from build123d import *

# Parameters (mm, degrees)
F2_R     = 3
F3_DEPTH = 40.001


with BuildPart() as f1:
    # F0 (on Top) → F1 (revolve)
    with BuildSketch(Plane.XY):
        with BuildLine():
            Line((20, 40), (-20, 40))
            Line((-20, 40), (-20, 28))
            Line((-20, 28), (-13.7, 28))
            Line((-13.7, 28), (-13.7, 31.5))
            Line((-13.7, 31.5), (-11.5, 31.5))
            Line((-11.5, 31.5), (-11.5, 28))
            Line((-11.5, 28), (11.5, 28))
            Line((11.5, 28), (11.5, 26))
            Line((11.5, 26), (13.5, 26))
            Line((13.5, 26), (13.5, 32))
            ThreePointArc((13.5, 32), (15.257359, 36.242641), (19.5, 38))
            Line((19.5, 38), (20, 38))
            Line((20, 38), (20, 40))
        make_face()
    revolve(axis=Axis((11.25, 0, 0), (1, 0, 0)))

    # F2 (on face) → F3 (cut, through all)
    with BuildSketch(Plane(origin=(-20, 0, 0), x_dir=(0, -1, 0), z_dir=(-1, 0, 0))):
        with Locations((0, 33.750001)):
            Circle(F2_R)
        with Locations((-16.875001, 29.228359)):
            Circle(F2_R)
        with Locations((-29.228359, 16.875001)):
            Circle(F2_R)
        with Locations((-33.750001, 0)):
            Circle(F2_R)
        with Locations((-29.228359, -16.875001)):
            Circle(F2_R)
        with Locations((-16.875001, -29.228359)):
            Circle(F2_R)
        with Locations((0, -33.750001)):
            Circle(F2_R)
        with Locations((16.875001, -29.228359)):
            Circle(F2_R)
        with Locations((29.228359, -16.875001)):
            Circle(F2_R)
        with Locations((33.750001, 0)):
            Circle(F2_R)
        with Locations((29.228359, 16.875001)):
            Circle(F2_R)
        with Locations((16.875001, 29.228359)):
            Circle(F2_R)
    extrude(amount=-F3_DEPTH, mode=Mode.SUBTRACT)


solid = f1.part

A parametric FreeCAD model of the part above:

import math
import FreeCAD as App
import Part
import Sketcher
Q = App.Units.Quantity

doc = App.newDocument("Part")
params = doc.addObject("Spreadsheet::Sheet", "Params")
for row, (alias, value) in enumerate([
    ("sketch1_radius", "5.999999 mm"),
    ("sketch1_width", "40 mm"),
    ("sketch1_width2", "23 mm"),
    ("sketch1_width3", "2 mm"),
    ("sketch1_height", "12 mm"),
    ("revolution_angle", "360 deg"),
    ("sketch2_diameter", "6 mm"),
], start=1):
    params.set(f"A{row}", alias)
    params.set(f"B{row}", "=" + value)
    params.setAlias(f"B{row}", alias)

body = doc.addObject("PartDesign::Body", "Body")

# Sketch on XY plane
sketch1 = body.newObject("Sketcher::SketchObject", "Sketch")
sketch1.AttachmentSupport = (doc.getObject("XY_Plane"), [""])
sketch1.MapMode = "FlatFace"
sketch1.addGeometry(Part.LineSegment(App.Vector(20, 40, 0), App.Vector(-20, 40, 0)), False)
sketch1.addGeometry(Part.LineSegment(App.Vector(-20, 40, 0), App.Vector(-20, 28, 0)), False)
sketch1.addGeometry(Part.LineSegment(App.Vector(-20, 28, 0), App.Vector(-13.7, 28, 0)), False)
sketch1.addGeometry(Part.LineSegment(App.Vector(-13.7, 28, 0), App.Vector(-13.7, 31.5, 0)), False)
sketch1.addGeometry(Part.LineSegment(App.Vector(-13.7, 31.5, 0), App.Vector(-11.5, 31.5, 0)), False)
sketch1.addGeometry(Part.LineSegment(App.Vector(-11.5, 31.5, 0), App.Vector(-11.5, 28, 0)), False)
sketch1.addGeometry(Part.LineSegment(App.Vector(-11.5, 28, 0), App.Vector(11.5, 28, 0)), False)
sketch1.addGeometry(Part.LineSegment(App.Vector(11.5, 28, 0), App.Vector(11.5, 26, 0)), False)
sketch1.addGeometry(Part.LineSegment(App.Vector(11.5, 26, 0), App.Vector(13.5, 26, 0)), False)
sketch1.addGeometry(Part.LineSegment(App.Vector(13.5, 26, 0), App.Vector(13.5, 32, 0)), False)
sketch1.addGeometry(Part.ArcOfCircle(Part.Circle(App.Vector(19.5, 32, 0), App.Vector(0, 0, 1), 6), math.radians(90), math.radians(180)), False)
sketch1.addGeometry(Part.LineSegment(App.Vector(19.5, 38, 0), App.Vector(20, 38, 0)), False)
sketch1.addGeometry(Part.LineSegment(App.Vector(20, 38, 0), App.Vector(20, 40, 0)), False)
sketch1.addConstraint(Sketcher.Constraint("Coincident", 0, 2, 1, 1))
sketch1.addConstraint(Sketcher.Constraint("Coincident", 1, 2, 2, 1))
sketch1.addConstraint(Sketcher.Constraint("Coincident", 2, 2, 3, 1))
sketch1.addConstraint(Sketcher.Constraint("Coincident", 3, 2, 4, 1))
sketch1.addConstraint(Sketcher.Constraint("Coincident", 4, 2, 5, 1))
sketch1.addConstraint(Sketcher.Constraint("Coincident", 5, 2, 6, 1))
sketch1.addConstraint(Sketcher.Constraint("Coincident", 6, 2, 7, 1))
sketch1.addConstraint(Sketcher.Constraint("Coincident", 7, 2, 8, 1))
sketch1.addConstraint(Sketcher.Constraint("Coincident", 8, 2, 9, 1))
sketch1.addConstraint(Sketcher.Constraint("Tangent", 9, 2, 10, 2))
sketch1.addConstraint(Sketcher.Constraint("Tangent", 10, 1, 11, 1))
sketch1.addConstraint(Sketcher.Constraint("Coincident", 11, 2, 12, 1))
sketch1.addConstraint(Sketcher.Constraint("Coincident", 12, 2, 0, 1))
sketch1.addConstraint(Sketcher.Constraint("Horizontal", 0))
sketch1.addConstraint(Sketcher.Constraint("Vertical", 1))
sketch1.addConstraint(Sketcher.Constraint("Horizontal", 2))
sketch1.addConstraint(Sketcher.Constraint("Vertical", 3))
sketch1.addConstraint(Sketcher.Constraint("Horizontal", 4))
sketch1.addConstraint(Sketcher.Constraint("Vertical", 5))
sketch1.addConstraint(Sketcher.Constraint("Horizontal", 6))
sketch1.addConstraint(Sketcher.Constraint("Vertical", 7))
sketch1.addConstraint(Sketcher.Constraint("Horizontal", 8))
sketch1.addConstraint(Sketcher.Constraint("Vertical", 9))
sketch1.addConstraint(Sketcher.Constraint("Horizontal", 11))
sketch1.addConstraint(Sketcher.Constraint("Vertical", 12))
sketch1.addConstraint(Sketcher.Constraint("Horizontal", 2, 2, 5, 2))
sketch1.addConstraint(Sketcher.Constraint("Equal", 8, 7))
sketch1.addConstraint(Sketcher.Constraint("Equal", 7, 12))
sketch1.addConstraint(Sketcher.Constraint("Radius", 10, Q("5.999999 mm")))
sketch1.addConstraint(Sketcher.Constraint("DistanceX", 0, 2, 0, 1, Q("40 mm")))
sketch1.addConstraint(Sketcher.Constraint("DistanceX", 6, 1, 6, 2, Q("23 mm")))
sketch1.addConstraint(Sketcher.Constraint("DistanceX", 8, 1, 8, 2, Q("2 mm")))
sketch1.addConstraint(Sketcher.Constraint("DistanceY", 1, 2, 1, 1, Q("12 mm")))
sketch1.addConstraint(Sketcher.Constraint("DistanceX", 2, 1, 2, 2, Q("6.3 mm")))
sketch1.addConstraint(Sketcher.Constraint("DistanceX", 4, 1, 4, 2, Q("2.2 mm")))
sketch1.addConstraint(Sketcher.Constraint("DistanceY", 3, 1, 3, 2, Q("3.5 mm")))
sketch1.addConstraint(Sketcher.Constraint("DistanceY", -1, 1, 10, 3, Q("32.000001 mm")))
sketch1.addConstraint(Sketcher.Constraint("DistanceX", 0, 2, -1, 1, Q("20 mm")))
sketch1.setExpression("Constraints[28]", "Params.sketch1_radius")
sketch1.setExpression("Constraints[29]", "Params.sketch1_width")
sketch1.setExpression("Constraints[30]", "Params.sketch1_width2")
sketch1.setExpression("Constraints[31]", "Params.sketch1_width3")
sketch1.setExpression("Constraints[32]", "Params.sketch1_height")
revolution = body.newObject("PartDesign::Revolution", "Revolution")
revolution.Profile = sketch1
revolution.ReferenceAxis = (sketch1, ["H_Axis"])
revolution.setExpression("Angle", "Params.revolution_angle")

# Sketch on YZ plane
sketch2 = body.newObject("Sketcher::SketchObject", "Sketch001")
sketch2.AttachmentSupport = (doc.getObject("YZ_Plane"), [""])
sketch2.MapMode = "FlatFace"
sketch2.AttachmentOffset = App.Placement(App.Vector(0, 0, -20), App.Rotation())
sketch2.addGeometry(Part.Circle(App.Vector(0, 33.8, 0), App.Vector(0, 0, 1), 3), False)
sketch2.addGeometry(Part.Circle(App.Vector(16.9, 29.2, 0), App.Vector(0, 0, 1), 3), False)
sketch2.addGeometry(Part.Circle(App.Vector(29.2, 16.9, 0), App.Vector(0, 0, 1), 3), False)
sketch2.addGeometry(Part.Circle(App.Vector(33.8, 0, 0), App.Vector(0, 0, 1), 3), False)
sketch2.addGeometry(Part.Circle(App.Vector(29.2, -16.9, 0), App.Vector(0, 0, 1), 3), False)
sketch2.addGeometry(Part.Circle(App.Vector(16.9, -29.2, 0), App.Vector(0, 0, 1), 3), False)
sketch2.addGeometry(Part.Circle(App.Vector(0, -33.8, 0), App.Vector(0, 0, 1), 3), False)
sketch2.addGeometry(Part.Circle(App.Vector(-16.9, -29.2, 0), App.Vector(0, 0, 1), 3), False)
sketch2.addGeometry(Part.Circle(App.Vector(-29.2, -16.9, 0), App.Vector(0, 0, 1), 3), False)
sketch2.addGeometry(Part.Circle(App.Vector(-33.8, 0, 0), App.Vector(0, 0, 1), 3), False)
sketch2.addGeometry(Part.Circle(App.Vector(-29.2, 16.9, 0), App.Vector(0, 0, 1), 3), False)
sketch2.addGeometry(Part.Circle(App.Vector(-16.9, 29.2, 0), App.Vector(0, 0, 1), 3), False)
sketch2.addConstraint(Sketcher.Constraint("Equal", 0, 1))
sketch2.addConstraint(Sketcher.Constraint("Equal", 1, 2))
sketch2.addConstraint(Sketcher.Constraint("Equal", 2, 3))
sketch2.addConstraint(Sketcher.Constraint("Equal", 3, 4))
sketch2.addConstraint(Sketcher.Constraint("Equal", 4, 5))
sketch2.addConstraint(Sketcher.Constraint("Equal", 5, 6))
sketch2.addConstraint(Sketcher.Constraint("Equal", 6, 7))
sketch2.addConstraint(Sketcher.Constraint("Equal", 7, 8))
sketch2.addConstraint(Sketcher.Constraint("Equal", 8, 9))
sketch2.addConstraint(Sketcher.Constraint("Equal", 9, 10))
sketch2.addConstraint(Sketcher.Constraint("Equal", 10, 11))
sketch2.addConstraint(Sketcher.Constraint("Symmetric", 0, 3, 6, 3, -1, 1))
sketch2.addConstraint(Sketcher.Constraint("Symmetric", 1, 3, 7, 3, -1, 1))
sketch2.addConstraint(Sketcher.Constraint("Symmetric", 2, 3, 8, 3, -1, 1))
sketch2.addConstraint(Sketcher.Constraint("Symmetric", 3, 3, 9, 3, -1, 1))
sketch2.addConstraint(Sketcher.Constraint("Symmetric", 4, 3, 10, 3, -1, 1))
sketch2.addConstraint(Sketcher.Constraint("Symmetric", 5, 3, 11, 3, -1, 1))
sketch2.addConstraint(Sketcher.Constraint("Symmetric", 5, 3, 7, 3, -2))
sketch2.addConstraint(Sketcher.Constraint("Symmetric", 4, 3, 8, 3, -2))
sketch2.addConstraint(Sketcher.Constraint("PointOnObject", 0, 3, -2))
sketch2.addConstraint(Sketcher.Constraint("PointOnObject", 3, 3, -1))
sketch2.addConstraint(Sketcher.Constraint("Diameter", 0, Q("6 mm")))
sketch2.addConstraint(Sketcher.Constraint("DistanceY", -1, 1, 0, 3, Q("33.750001 mm")))
sketch2.addConstraint(Sketcher.Constraint("DistanceX", -1, 1, 3, 3, Q("33.750001 mm")))
sketch2.addConstraint(Sketcher.Constraint("DistanceX", -1, 1, 1, 3, Q("16.875001 mm")))
sketch2.addConstraint(Sketcher.Constraint("DistanceY", -1, 1, 2, 3, Q("16.875001 mm")))
sketch2.addConstraint(Sketcher.Constraint("DistanceY", -1, 1, 1, 3, Q("29.228359 mm")))
sketch2.addConstraint(Sketcher.Constraint("DistanceX", -1, 1, 2, 3, Q("29.228359 mm")))
sketch2.setExpression("Constraints[21]", "Params.sketch2_diameter")
pocket1 = body.newObject("PartDesign::Pocket", "Pocket")
pocket1.Profile = sketch2
pocket1.Type = "ThroughAll"
pocket1.Reversed = True

doc.recompute()
